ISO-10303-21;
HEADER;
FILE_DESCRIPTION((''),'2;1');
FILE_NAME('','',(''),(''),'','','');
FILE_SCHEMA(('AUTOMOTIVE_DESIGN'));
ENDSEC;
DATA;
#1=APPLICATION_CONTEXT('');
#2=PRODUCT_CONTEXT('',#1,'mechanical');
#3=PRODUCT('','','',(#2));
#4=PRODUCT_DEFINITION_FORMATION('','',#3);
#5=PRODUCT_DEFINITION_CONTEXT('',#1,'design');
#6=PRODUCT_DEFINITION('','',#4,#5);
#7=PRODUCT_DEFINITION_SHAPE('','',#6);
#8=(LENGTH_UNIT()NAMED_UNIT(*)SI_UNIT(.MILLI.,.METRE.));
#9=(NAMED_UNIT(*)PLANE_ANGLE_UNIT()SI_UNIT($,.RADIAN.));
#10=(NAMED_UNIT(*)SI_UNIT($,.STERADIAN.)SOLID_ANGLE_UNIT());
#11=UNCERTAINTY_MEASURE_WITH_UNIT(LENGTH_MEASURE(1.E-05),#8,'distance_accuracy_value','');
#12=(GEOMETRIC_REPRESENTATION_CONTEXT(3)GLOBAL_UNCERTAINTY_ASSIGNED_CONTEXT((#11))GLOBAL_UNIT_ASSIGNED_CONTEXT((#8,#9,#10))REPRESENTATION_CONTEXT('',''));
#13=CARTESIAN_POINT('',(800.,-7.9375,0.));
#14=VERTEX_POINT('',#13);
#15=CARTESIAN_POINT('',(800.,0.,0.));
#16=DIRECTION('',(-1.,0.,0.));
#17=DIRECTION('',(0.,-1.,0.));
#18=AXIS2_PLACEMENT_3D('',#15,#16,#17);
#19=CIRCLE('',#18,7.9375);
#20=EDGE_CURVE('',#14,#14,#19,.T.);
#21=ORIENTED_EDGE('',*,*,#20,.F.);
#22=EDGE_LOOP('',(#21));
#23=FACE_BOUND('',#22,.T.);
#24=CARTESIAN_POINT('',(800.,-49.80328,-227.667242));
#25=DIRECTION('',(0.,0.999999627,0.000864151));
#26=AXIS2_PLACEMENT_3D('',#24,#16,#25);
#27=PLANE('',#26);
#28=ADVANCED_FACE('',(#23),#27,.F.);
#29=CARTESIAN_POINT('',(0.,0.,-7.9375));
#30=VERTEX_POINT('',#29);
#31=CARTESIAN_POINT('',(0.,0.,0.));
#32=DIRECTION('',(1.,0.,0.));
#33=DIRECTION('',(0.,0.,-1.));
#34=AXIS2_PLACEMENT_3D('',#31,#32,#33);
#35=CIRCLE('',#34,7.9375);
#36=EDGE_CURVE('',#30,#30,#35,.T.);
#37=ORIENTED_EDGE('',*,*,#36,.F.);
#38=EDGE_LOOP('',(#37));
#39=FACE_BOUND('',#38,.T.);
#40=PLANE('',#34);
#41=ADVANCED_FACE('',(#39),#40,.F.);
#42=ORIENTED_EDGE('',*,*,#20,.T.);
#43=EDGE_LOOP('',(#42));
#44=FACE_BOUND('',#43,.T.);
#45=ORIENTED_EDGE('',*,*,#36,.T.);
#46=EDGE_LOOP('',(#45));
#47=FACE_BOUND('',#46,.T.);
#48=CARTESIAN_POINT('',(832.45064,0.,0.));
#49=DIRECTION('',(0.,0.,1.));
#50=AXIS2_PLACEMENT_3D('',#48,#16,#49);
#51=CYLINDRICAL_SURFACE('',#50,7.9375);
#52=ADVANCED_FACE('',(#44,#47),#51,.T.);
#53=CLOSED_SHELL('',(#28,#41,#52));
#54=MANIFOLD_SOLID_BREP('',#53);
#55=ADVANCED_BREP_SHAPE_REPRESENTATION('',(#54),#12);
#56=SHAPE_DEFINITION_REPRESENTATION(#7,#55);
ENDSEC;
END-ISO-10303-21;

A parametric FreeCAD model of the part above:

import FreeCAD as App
import Part
import Sketcher
from FreeCAD import Vector

doc = App.newDocument("Part")
body = doc.addObject("PartDesign::Body", "Body")

sketch1 = doc.addObject("Sketcher::SketchObject", "Sketch")
body.addObject(sketch1)
sketch1.AttachmentSupport = (doc.YZ_Plane, [""])
sketch1.MapMode = "FlatFace"
sketch1.addGeometry(Part.Circle(Vector(0, 0, 0), Vector(0, 0, 1), 7.9375), False)
sketch1.addConstraint([
    Sketcher.Constraint("Coincident", 0, 3, -1, 1),
    Sketcher.Constraint("Diameter", 0, 15.875),
])
pad1 = doc.addObject("PartDesign::Pad", "Pad")
body.addObject(pad1)
pad1.Profile = sketch1
pad1.Length = 800

doc.recompute()
